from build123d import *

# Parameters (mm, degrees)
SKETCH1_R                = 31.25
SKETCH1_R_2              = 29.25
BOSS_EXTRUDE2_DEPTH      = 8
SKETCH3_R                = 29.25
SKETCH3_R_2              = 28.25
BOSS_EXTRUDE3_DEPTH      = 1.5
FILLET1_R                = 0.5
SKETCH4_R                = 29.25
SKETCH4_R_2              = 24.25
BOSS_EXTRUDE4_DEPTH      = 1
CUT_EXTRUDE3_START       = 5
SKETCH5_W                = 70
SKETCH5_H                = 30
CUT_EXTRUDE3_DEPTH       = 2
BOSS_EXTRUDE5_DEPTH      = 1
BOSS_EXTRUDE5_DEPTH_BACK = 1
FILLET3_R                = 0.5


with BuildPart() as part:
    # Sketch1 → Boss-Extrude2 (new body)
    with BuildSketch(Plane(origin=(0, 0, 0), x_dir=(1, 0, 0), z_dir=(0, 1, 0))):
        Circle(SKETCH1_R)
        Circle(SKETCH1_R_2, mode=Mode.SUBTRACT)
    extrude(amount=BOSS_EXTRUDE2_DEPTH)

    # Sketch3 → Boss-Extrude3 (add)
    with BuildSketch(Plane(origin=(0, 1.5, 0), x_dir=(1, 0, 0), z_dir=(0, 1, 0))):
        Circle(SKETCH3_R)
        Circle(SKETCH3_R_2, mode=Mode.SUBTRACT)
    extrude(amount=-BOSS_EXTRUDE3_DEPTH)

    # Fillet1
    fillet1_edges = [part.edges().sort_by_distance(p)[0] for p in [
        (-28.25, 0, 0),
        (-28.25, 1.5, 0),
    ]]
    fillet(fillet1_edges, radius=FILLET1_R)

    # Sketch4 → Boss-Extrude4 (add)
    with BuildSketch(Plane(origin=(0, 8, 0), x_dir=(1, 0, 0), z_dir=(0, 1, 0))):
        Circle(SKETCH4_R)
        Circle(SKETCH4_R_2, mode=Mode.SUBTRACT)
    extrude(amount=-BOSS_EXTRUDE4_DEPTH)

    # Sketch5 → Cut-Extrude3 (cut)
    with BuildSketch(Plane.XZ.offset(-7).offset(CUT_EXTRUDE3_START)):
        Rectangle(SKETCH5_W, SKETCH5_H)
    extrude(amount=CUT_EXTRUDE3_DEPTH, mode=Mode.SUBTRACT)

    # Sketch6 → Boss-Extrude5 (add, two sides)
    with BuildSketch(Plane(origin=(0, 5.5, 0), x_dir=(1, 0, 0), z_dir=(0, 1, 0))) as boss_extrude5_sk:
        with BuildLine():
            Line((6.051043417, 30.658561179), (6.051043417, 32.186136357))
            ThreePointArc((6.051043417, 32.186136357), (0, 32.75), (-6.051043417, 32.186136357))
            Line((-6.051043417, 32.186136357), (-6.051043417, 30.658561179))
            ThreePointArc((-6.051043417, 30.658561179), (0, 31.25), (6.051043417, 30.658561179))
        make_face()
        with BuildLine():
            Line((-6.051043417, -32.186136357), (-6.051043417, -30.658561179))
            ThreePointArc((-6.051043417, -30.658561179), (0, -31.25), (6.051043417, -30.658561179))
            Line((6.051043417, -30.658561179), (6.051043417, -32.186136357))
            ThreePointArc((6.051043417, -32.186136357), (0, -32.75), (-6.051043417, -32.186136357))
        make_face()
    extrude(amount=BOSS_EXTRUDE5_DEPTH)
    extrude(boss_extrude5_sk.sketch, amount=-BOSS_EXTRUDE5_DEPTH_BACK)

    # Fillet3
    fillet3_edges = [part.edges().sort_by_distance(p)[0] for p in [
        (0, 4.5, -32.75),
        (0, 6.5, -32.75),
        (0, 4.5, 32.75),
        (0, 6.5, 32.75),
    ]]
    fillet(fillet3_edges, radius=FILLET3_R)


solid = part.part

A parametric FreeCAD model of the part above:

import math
import FreeCAD as App
import Part
import Sketcher
from FreeCAD import Vector
Q = App.Units.Quantity


def edges_at(feature, points):
    """Names of the edges that pass closest to the given points."""
    edges = feature.Shape.Edges
    near = lambda p: min(range(len(edges)), key=lambda i: edges[i].distToShape(Part.Vertex(*p))[0])
    return sorted({f"Edge{near(p) + 1}" for p in points})

doc = App.newDocument("Part")
params = doc.addObject("Spreadsheet::Sheet", "Params")
for row, (alias, value) in enumerate([
    ("sketch1_diameter", "62.5 mm"),
    ("sketch1_diameter2", "58.5 mm"),
    ("pad1_length", "8 mm"),
    ("sketch2_diameter", "58.5 mm"),
    ("sketch2_diameter2", "56.5 mm"),
    ("pad2_length", "1.5 mm"),
    ("fillet_radius", "0.5 mm"),
    ("sketch3_diameter", "58.5 mm"),
    ("sketch3_diameter2", "48.5 mm"),
    ("pad3_length", "1 mm"),
    ("sketch4_width", "70 mm"),
    ("sketch4_height", "30 mm"),
    ("pocket1_length", "2 mm"),
    ("sketch5_radius", "32.75 mm"),
    ("sketch5_radius2", "31.25 mm"),
    ("pad4_length", "1 mm"),
    ("pad4_length2", "1 mm"),
    ("fillet2_radius", "0.5 mm"),
], start=1):
    params.set(f"A{row}", alias)
    params.set(f"B{row}", "=" + value)
    params.setAlias(f"B{row}", alias)

body = doc.addObject("PartDesign::Body", "Body")

# Sketch on XZ plane
sketch1 = body.newObject("Sketcher::SketchObject", "Sketch")
sketch1.AttachmentSupport = (doc.getObject("XZ_Plane"), [""])
sketch1.MapMode = "FlatFace"
sketch1.addGeometry([
    Part.Circle(Vector(0, 0, 0), Vector(0, 0, 1), 31.25),
    Part.Circle(Vector(0, 0, 0), Vector(0, 0, 1), 29.25),
], False)
sketch1.addConstraint([
    Sketcher.Constraint("Coincident", 0, 3, -1, 1),
    Sketcher.Constraint("Coincident", 1, 3, -1, 1),
    Sketcher.Constraint("Diameter", 0, Q("62.5 mm")),
    Sketcher.Constraint("Diameter", 1, Q("58.5 mm")),
])
sketch1.setExpression("Constraints[2]", "Params.sketch1_diameter")
sketch1.setExpression("Constraints[3]", "Params.sketch1_diameter2")
pad1 = body.newObject("PartDesign::Pad", "Pad")
pad1.Profile = sketch1
pad1.setExpression("Length", "Params.pad1_length")
pad1.Reversed = True

# Sketch on XZ plane
sketch2 = body.newObject("Sketcher::SketchObject", "Sketch001")
sketch2.AttachmentSupport = (doc.getObject("XZ_Plane"), [""])
sketch2.MapMode = "FlatFace"
sketch2.AttachmentOffset = App.Placement(Vector(0, 0, -1.5), App.Rotation())
sketch2.addGeometry([
    Part.Circle(Vector(0, 0, 0), Vector(0, 0, 1), 29.25),
    Part.Circle(Vector(0, 0, 0), Vector(0, 0, 1), 28.25),
], False)
sketch2.addConstraint([
    Sketcher.Constraint("Coincident", 0, 3, -1, 1),
    Sketcher.Constraint("Coincident", 1, 3, -1, 1),
    Sketcher.Constraint("Diameter", 0, Q("58.5 mm")),
    Sketcher.Constraint("Diameter", 1, Q("56.5 mm")),
])
sketch2.setExpression("Constraints[2]", "Params.sketch2_diameter")
sketch2.setExpression("Constraints[3]", "Params.sketch2_diameter2")
pad2 = body.newObject("PartDesign::Pad", "Pad001")
pad2.Profile = sketch2
pad2.setExpression("Length", "Params.pad2_length")
doc.recompute()

fillet = body.newObject("PartDesign::Fillet", "Fillet")
fillet.Base = (pad2, edges_at(pad2, [(-28.25, 0, 0), (-28.25, 1.5, 0)]))
fillet.setExpression("Radius", "Params.fillet_radius")

# Sketch on XZ plane
sketch3 = body.newObject("Sketcher::SketchObject", "Sketch002")
sketch3.AttachmentSupport = (doc.getObject("XZ_Plane"), [""])
sketch3.MapMode = "FlatFace"
sketch3.AttachmentOffset = App.Placement(Vector(0, 0, -8), App.Rotation())
sketch3.addGeometry([
    Part.Circle(Vector(0, 0, 0), Vector(0, 0, 1), 29.25),
    Part.Circle(Vector(0, 0, 0), Vector(0, 0, 1), 24.25),
], False)
sketch3.addConstraint([
    Sketcher.Constraint("Coincident", 0, 3, -1, 1),
    Sketcher.Constraint("Coincident", 1, 3, -1, 1),
    Sketcher.Constraint("Diameter", 0, Q("58.5 mm")),
    Sketcher.Constraint("Diameter", 1, Q("48.5 mm")),
])
sketch3.setExpression("Constraints[2]", "Params.sketch3_diameter")
sketch3.setExpression("Constraints[3]", "Params.sketch3_diameter2")
pad3 = body.newObject("PartDesign::Pad", "Pad002")
pad3.Profile = sketch3
pad3.setExpression("Length", "Params.pad3_length")

# Sketch on XZ plane
sketch4 = body.newObject("Sketcher::SketchObject", "Sketch003")
sketch4.AttachmentSupport = (doc.getObject("XZ_Plane"), [""])
sketch4.MapMode = "FlatFace"
sketch4.AttachmentOffset = App.Placement(Vector(0, 0, -2), App.Rotation())
sketch4.addGeometry([
    Part.LineSegment(Vector(-35, 15, 0), Vector(-35, -15, 0)),
    Part.LineSegment(Vector(-35, -15, 0), Vector(35, -15, 0)),
    Part.LineSegment(Vector(35, -15, 0), Vector(35, 15, 0)),
    Part.LineSegment(Vector(35, 15, 0), Vector(-35, 15, 0)),
], False)
sketch4.addConstraint([
    Sketcher.Constraint("Coincident", 0, 2, 1, 1),
    Sketcher.Constraint("Coincident", 1, 2, 2, 1),
    Sketcher.Constraint("Coincident", 2, 2, 3, 1),
    Sketcher.Constraint("Coincident", 3, 2, 0, 1),
    Sketcher.Constraint("Vertical", 0),
    Sketcher.Constraint("Horizontal", 1),
    Sketcher.Constraint("Vertical", 2),
    Sketcher.Constraint("Horizontal", 3),
    Sketcher.Constraint("Symmetric", 0, 2, 2, 2, -1, 1),
    Sketcher.Constraint("DistanceX", 1, 1, 1, 2, Q("70 mm")),
    Sketcher.Constraint("DistanceY", 0, 2, 0, 1, Q("30 mm")),
])
sketch4.setExpression("Constraints[9]", "Params.sketch4_width")
sketch4.setExpression("Constraints[10]", "Params.sketch4_height")
pocket1 = body.newObject("PartDesign::Pocket", "Pocket")
pocket1.Profile = sketch4
pocket1.setExpression("Length", "Params.pocket1_length")
pocket1.Reversed = True

# Sketch on XZ plane
sketch5 = body.newObject("Sketcher::SketchObject", "Sketch004")
sketch5.AttachmentSupport = (doc.getObject("XZ_Plane"), [""])
sketch5.MapMode = "FlatFace"
sketch5.AttachmentOffset = App.Placement(Vector(0, 0, -5.5), App.Rotation())
sketch5.addGeometry([
    Part.LineSegment(Vector(6.051043, -30.658561, 0), Vector(6.051043, -32.186136, 0)),  # 0
    Part.ArcOfCircle(Part.Circle(Vector(0, 0, 0), Vector(0, 0, 1), 32.75), math.radians(-100.647413), math.radians(-79.352587)),  # 1
    Part.LineSegment(Vector(-6.051043, -32.186136, 0), Vector(-6.051043, -30.658561, 0)),  # 2
    Part.ArcOfCircle(Part.Circle(Vector(0, 0, 0), Vector(0, 0, 1), 31.25), math.radians(-101.164901), math.radians(-78.835099)),  # 3
    Part.LineSegment(Vector(-6.051043, 30.658561, 0), Vector(-6.051043, 32.186136, 0)),  # 4
    Part.ArcOfCircle(Part.Circle(Vector(0, 0, 0), Vector(0, 0, 1), 32.75), math.radians(79.352587), math.radians(100.647413)),  # 5
    Part.LineSegment(Vector(6.051043, 32.186136, 0), Vector(6.051043, 30.658561, 0)),  # 6
    Part.ArcOfCircle(Part.Circle(Vector(0, 0, 0), Vector(0, 0, 1), 31.25), math.radians(78.835099), math.radians(101.164901)),  # 7
], False)
sketch5.addConstraint([
    Sketcher.Constraint("Coincident", 0, 2, 1, 2),
    Sketcher.Constraint("Coincident", 1, 1, 2, 1),
    Sketcher.Constraint("Coincident", 2, 2, 3, 1),
    Sketcher.Constraint("Coincident", 3, 2, 0, 1),
    Sketcher.Constraint("Coincident", 4, 2, 5, 2),
    Sketcher.Constraint("Coincident", 5, 1, 6, 1),
    Sketcher.Constraint("Coincident", 6, 2, 7, 1),
    Sketcher.Constraint("Coincident", 7, 2, 4, 1),
    Sketcher.Constraint("Vertical", 0),
    Sketcher.Constraint("Vertical", 2),
    Sketcher.Constraint("Vertical", 4),
    Sketcher.Constraint("Vertical", 6),
    Sketcher.Constraint("Coincident", 1, 3, -1, 1),
    Sketcher.Constraint("Coincident", 3, 3, -1, 1),
    Sketcher.Constraint("Coincident", 5, 3, -1, 1),
    Sketcher.Constraint("Coincident", 7, 3, -1, 1),
    Sketcher.Constraint("Equal", 1, 5),
    Sketcher.Constraint("Equal", 3, 7),
    Sketcher.Constraint("Horizontal", 0, 2, 1, 1),
    Sketcher.Constraint("Horizontal", 4, 2, 5, 1),
    Sketcher.Constraint("Vertical", 2, 2, 4, 2),
    Sketcher.Constraint("Radius", 1, Q("32.75 mm")),
    Sketcher.Constraint("Radius", 3, Q("31.25 mm")),
    Sketcher.Constraint("DistanceY", 0, 2, 0, 1, Q("1.527575 mm")),
])
sketch5.setExpression("Constraints[21]", "Params.sketch5_radius")
sketch5.setExpression("Constraints[22]", "Params.sketch5_radius2")
pad4 = body.newObject("PartDesign::Pad", "Pad003")
pad4.Profile = sketch5
pad4.Type = "TwoLengths"
pad4.setExpression("Length", "Params.pad4_length")
pad4.setExpression("Length2", "Params.pad4_length2")
pad4.Reversed = True
doc.recompute()

fillet2 = body.newObject("PartDesign::Fillet", "Fillet001")
fillet2.Base = (pad4, edges_at(pad4, [
    (0, 4.5, -32.75),
    (0, 6.5, -32.75),
    (0, 4.5, 32.75),
    (0, 6.5, 32.75),
]))
fillet2.setExpression("Radius", "Params.fillet2_radius")

doc.recompute()
